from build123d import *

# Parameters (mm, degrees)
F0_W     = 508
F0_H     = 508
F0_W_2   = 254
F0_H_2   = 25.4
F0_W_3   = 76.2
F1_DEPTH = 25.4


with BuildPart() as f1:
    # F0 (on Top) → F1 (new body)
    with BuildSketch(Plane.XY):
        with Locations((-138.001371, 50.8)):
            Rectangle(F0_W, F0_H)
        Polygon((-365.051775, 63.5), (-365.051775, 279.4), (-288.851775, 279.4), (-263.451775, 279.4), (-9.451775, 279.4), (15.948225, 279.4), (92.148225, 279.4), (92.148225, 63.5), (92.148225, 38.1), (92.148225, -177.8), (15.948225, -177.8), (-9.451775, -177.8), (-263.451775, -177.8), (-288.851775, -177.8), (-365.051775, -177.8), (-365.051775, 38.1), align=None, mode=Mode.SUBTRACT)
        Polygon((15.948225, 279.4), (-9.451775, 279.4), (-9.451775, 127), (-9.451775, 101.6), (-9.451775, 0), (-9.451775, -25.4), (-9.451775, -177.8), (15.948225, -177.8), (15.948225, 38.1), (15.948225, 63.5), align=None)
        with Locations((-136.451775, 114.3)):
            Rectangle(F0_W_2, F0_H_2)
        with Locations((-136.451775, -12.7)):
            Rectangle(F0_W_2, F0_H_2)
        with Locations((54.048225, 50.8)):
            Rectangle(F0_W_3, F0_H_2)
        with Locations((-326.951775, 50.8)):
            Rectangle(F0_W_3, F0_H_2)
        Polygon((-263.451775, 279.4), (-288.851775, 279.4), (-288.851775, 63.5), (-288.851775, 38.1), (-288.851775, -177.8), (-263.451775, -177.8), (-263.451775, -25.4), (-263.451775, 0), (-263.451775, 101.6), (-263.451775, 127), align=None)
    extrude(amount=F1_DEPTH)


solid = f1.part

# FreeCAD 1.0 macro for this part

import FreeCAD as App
import Part
import Sketcher
Q = App.Units.Quantity


def add_polygon(sketch, points):
    """Adds a closed chain of lines whose ends are joined by coincident constraints."""
    first, n = sketch.GeometryCount, len(points)
    for a, b in zip(points, points[1:] + points[:1]):
        sketch.addGeometry(Part.LineSegment(App.Vector(*a, 0), App.Vector(*b, 0)), False)
    for i in range(n):
        sketch.addConstraint(Sketcher.Constraint("Coincident", first + i, 2, first + (i + 1) % n, 1))

doc = App.newDocument("Part")
body = doc.addObject("PartDesign::Body", "Body")

sketch1 = body.newObject("Sketcher::SketchObject", "Sketch")
sketch1.AttachmentSupport = (doc.getObject("XY_Plane"), [""])
sketch1.MapMode = "FlatFace"
add_polygon(sketch1, [(-392.001371, 304.8), (-392.001371, -203.2), (115.998629, -203.2), (115.998629, 304.8)])
add_polygon(sketch1, [(-365.051775, -177.8), (-365.051775, 38.1), (-288.851775, 38.1), (-288.851775, -177.8)])
add_polygon(sketch1, [(-288.851775, 63.5), (-365.051775, 63.5), (-365.051775, 279.4), (-288.851775, 279.4)])
add_polygon(sketch1, [(-263.451775, 279.4), (-9.451775, 279.4), (-9.451775, 127), (-263.451775, 127)])
add_polygon(sketch1, [(-263.451775, 101.6), (-9.451775, 101.6), (-9.451775, 0), (-263.451775, 0)])
add_polygon(sketch1, [(-263.451775, -25.4), (-9.451775, -25.4), (-9.451775, -177.8), (-263.451775, -177.8)])
add_polygon(sketch1, [(15.948225, 279.4), (92.148225, 279.4), (92.148225, 63.5), (15.948225, 63.5)])
add_polygon(sketch1, [(92.148225, 38.1), (92.148225, -177.8), (15.948225, -177.8), (15.948225, 38.1)])
sketch1.addConstraint([
    Sketcher.Constraint("Vertical", 0),
    Sketcher.Constraint("Horizontal", 1),
    Sketcher.Constraint("Vertical", 2),
    Sketcher.Constraint("Horizontal", 3),
    Sketcher.Constraint("Vertical", 4),
    Sketcher.Constraint("Horizontal", 5),
    Sketcher.Constraint("Vertical", 6),
    Sketcher.Constraint("Horizontal", 7),
    Sketcher.Constraint("Horizontal", 8),
    Sketcher.Constraint("Vertical", 9),
    Sketcher.Constraint("Horizontal", 10),
    Sketcher.Constraint("Vertical", 11),
    Sketcher.Constraint("Horizontal", 12),
    Sketcher.Constraint("Vertical", 13),
    Sketcher.Constraint("Horizontal", 14),
    Sketcher.Constraint("Vertical", 15),
    Sketcher.Constraint("Horizontal", 16),
    Sketcher.Constraint("Vertical", 17),
    Sketcher.Constraint("Horizontal", 18),
    Sketcher.Constraint("Vertical", 19),
    Sketcher.Constraint("Horizontal", 20),
    Sketcher.Constraint("Vertical", 21),
    Sketcher.Constraint("Horizontal", 22),
    Sketcher.Constraint("Vertical", 23),
    Sketcher.Constraint("Horizontal", 24),
    Sketcher.Constraint("Vertical", 25),
    Sketcher.Constraint("Horizontal", 26),
    Sketcher.Constraint("Vertical", 27),
    Sketcher.Constraint("Vertical", 28),
    Sketcher.Constraint("Horizontal", 29),
    Sketcher.Constraint("Vertical", 30),
    Sketcher.Constraint("Horizontal", 31),
    Sketcher.Constraint("PointOnObject", 17, 2, -1),
    Sketcher.Constraint("Horizontal", 10, 2, 12, 2),
    Sketcher.Constraint("Horizontal", 7, 2, 21, 2),
    Sketcher.Constraint("Horizontal", 15, 2, 24, 2),
    Sketcher.Constraint("Horizontal", 11, 2, 25, 2),
    Sketcher.Constraint("Horizontal", 22, 2, 28, 2),
    Sketcher.Constraint("Horizontal", 5, 2, 30, 2),
    Sketcher.Constraint("Vertical", 7, 2, 8, 2),
    Sketcher.Constraint("Vertical", 6, 2, 10, 2),
    Sketcher.Constraint("Vertical", 13, 2, 16, 2),
    Sketcher.Constraint("Vertical", 15, 2, 18, 2),
    Sketcher.Constraint("Vertical", 17, 2, 20, 2),
    Sketcher.Constraint("Vertical", 19, 2, 22, 2),
    Sketcher.Constraint("Vertical", 25, 2, 28, 2),
    Sketcher.Constraint("Vertical", 27, 2, 29, 2),
    Sketcher.Constraint("Equal", 10, 24),
    Sketcher.Constraint("Equal", 3, 0),
    Sketcher.Constraint("Equal", 6, 9),
    Sketcher.Constraint("Equal", 15, 21),
    Sketcher.Constraint("DistanceX", 1, 1, 1, 2, Q("20 in")),
    Sketcher.Constraint("DistanceX", 5, 1, 5, 2, Q("3 in")),
    Sketcher.Constraint("DistanceX", 12, 1, 12, 2, Q("10 in")),
    Sketcher.Constraint("DistanceY", 13, 2, 13, 1, Q("6 in")),
    Sketcher.Constraint("DistanceY", 17, 2, 17, 1, Q("4 in")),
    Sketcher.Constraint("DistanceY", 4, 1, 4, 2, Q("8.5 in")),
    Sketcher.Constraint("DistanceY", 0, 2, -1, 1, Q("8 in")),
    Sketcher.Constraint("DistanceY", 6, 2, -1, 1, Q("7 in")),
    Sketcher.Constraint("DistanceY", -1, 1, 9, 2, Q("11 in")),
    Sketcher.Constraint("DistanceX", 10, 2, 12, 2, Q("11 in")),
    Sketcher.Constraint("DistanceX", 12, 2, 24, 2, Q("4 in")),
    Sketcher.Constraint("DistanceX", 0, 2, -1, 1, Q("392.001371 mm")),
    Sketcher.Constraint("DistanceX", 4, 2, -1, 1, Q("365.051775 mm")),
])
pad1 = body.newObject("PartDesign::Pad", "Pad")
pad1.Profile = sketch1
pad1.Length = Q("1 in")

doc.recompute()
